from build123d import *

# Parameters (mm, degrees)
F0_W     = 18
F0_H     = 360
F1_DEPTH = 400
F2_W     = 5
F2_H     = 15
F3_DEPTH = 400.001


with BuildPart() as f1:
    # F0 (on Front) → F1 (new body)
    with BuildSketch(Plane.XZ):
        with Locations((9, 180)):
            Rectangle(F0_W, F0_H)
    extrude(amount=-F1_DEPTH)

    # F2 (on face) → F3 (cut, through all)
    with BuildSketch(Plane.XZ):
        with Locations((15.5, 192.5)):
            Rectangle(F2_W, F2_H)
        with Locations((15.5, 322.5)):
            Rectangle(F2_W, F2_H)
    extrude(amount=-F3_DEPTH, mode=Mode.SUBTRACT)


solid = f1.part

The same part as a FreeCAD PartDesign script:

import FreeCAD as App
import Part
import Sketcher
from FreeCAD import Vector
Q = App.Units.Quantity


def add_polygon(sketch, points):
    """Adds a closed chain of lines whose ends are joined by coincident constraints."""
    first, n = sketch.GeometryCount, len(points)
    for a, b in zip(points, points[1:] + points[:1]):
        sketch.addGeometry(Part.LineSegment(App.Vector(*a, 0), App.Vector(*b, 0)), False)
    for i in range(n):
        sketch.addConstraint(Sketcher.Constraint("Coincident", first + i, 2, first + (i + 1) % n, 1))

doc = App.newDocument("Part")
body = doc.addObject("PartDesign::Body", "Body")

# Sketch on XZ plane
sketch1 = body.newObject("Sketcher::SketchObject", "Sketch")
sketch1.AttachmentSupport = (doc.getObject("XZ_Plane"), [""])
sketch1.MapMode = "FlatFace"
add_polygon(sketch1, [(0, 360), (0, 0), (18, 0), (18, 360)])  # lines 0-3
sketch1.addConstraint([
    Sketcher.Constraint("Vertical", 0),
    Sketcher.Constraint("Horizontal", 1),
    Sketcher.Constraint("Vertical", 2),
    Sketcher.Constraint("Horizontal", 3),
    Sketcher.Constraint("Coincident", 0, 2, -1, 1),
    Sketcher.Constraint("DistanceX", 1, 1, 1, 2, Q("18 mm")),
    Sketcher.Constraint("DistanceY", 0, 2, 0, 1, Q("360 mm")),
])
pad1 = body.newObject("PartDesign::Pad", "Pad")
pad1.Profile = sketch1
pad1.Length = 400
pad1.Reversed = True

# Sketch on XZ plane
sketch2 = body.newObject("Sketcher::SketchObject", "Sketch001")
sketch2.AttachmentSupport = (doc.getObject("XZ_Plane"), [""])
sketch2.MapMode = "FlatFace"
add_polygon(sketch2, [(13, 200), (13, 185), (18, 185), (18, 200)])  # lines 0-3
add_polygon(sketch2, [(13, 330), (13, 315), (18, 315), (18, 330)])  # lines 4-7
sketch2.addConstraint([
    Sketcher.Constraint("Vertical", 0),
    Sketcher.Constraint("Horizontal", 1),
    Sketcher.Constraint("Vertical", 2),
    Sketcher.Constraint("Horizontal", 3),
    Sketcher.Constraint("Vertical", 4),
    Sketcher.Constraint("Horizontal", 5),
    Sketcher.Constraint("Vertical", 6),
    Sketcher.Constraint("Horizontal", 7),
    Sketcher.Constraint("Vertical", 3, 2, 4, 2),
    Sketcher.Constraint("Vertical", 2, 2, 5, 2),
    Sketcher.Constraint("Equal", 2, 4),
    Sketcher.Constraint("DistanceX", 1, 1, 1, 2, Q("5 mm")),
    Sketcher.Constraint("DistanceY", 0, 2, 0, 1, Q("15 mm")),
    Sketcher.Constraint("DistanceX", -1, 1, 0, 2, Q("13 mm")),
    Sketcher.Constraint("DistanceY", -1, 1, 0, 2, Q("185 mm")),
    Sketcher.Constraint("DistanceY", -1, 1, 4, 2, Q("315 mm")),
])
pocket1 = body.newObject("PartDesign::Pocket", "Pocket")
pocket1.Profile = sketch2
pocket1.Type = "ThroughAll"

doc.recompute()
